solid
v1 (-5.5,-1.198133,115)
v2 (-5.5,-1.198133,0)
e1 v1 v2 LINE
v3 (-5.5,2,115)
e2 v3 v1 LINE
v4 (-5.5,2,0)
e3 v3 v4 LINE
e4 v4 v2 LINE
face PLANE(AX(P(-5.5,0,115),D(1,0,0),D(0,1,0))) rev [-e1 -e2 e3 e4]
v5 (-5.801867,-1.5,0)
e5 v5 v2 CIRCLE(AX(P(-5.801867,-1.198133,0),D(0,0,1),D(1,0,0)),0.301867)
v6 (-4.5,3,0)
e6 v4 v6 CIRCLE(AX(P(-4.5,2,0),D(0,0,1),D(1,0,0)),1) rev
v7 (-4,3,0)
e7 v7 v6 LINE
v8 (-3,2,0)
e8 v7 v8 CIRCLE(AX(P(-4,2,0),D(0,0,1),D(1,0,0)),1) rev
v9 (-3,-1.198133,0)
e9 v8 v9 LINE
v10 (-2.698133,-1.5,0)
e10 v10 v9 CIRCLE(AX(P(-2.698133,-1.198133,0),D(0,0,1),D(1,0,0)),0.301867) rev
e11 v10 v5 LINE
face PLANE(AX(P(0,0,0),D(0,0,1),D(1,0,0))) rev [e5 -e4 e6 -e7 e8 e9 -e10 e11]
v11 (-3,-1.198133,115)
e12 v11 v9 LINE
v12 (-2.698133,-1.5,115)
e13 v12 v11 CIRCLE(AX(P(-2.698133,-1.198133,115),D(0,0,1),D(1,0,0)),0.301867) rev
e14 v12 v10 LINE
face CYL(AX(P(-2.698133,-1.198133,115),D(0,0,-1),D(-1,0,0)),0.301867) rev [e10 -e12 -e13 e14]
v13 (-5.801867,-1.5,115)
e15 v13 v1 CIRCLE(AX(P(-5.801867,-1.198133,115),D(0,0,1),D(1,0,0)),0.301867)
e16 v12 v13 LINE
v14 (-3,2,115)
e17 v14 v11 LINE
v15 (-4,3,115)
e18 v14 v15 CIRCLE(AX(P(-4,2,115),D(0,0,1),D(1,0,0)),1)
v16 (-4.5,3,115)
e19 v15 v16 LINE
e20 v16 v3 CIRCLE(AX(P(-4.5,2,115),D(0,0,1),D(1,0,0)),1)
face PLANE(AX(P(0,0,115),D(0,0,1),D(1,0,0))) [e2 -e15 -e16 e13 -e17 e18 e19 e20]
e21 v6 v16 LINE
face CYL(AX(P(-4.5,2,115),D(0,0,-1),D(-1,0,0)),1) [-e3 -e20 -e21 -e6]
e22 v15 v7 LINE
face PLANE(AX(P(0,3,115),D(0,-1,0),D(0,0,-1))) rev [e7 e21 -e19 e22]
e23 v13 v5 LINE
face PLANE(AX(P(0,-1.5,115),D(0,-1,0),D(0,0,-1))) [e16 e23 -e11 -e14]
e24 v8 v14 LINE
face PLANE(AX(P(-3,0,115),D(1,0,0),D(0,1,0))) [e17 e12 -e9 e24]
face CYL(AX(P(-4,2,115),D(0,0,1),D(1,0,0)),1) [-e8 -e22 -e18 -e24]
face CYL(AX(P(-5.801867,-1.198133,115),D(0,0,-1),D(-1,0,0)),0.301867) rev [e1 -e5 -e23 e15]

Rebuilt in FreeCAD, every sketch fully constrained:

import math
import FreeCAD as App
import Part
import Sketcher

V = App.Vector
Q = App.Units.Quantity


def edges_at(feature, points):
    """Names of the edges that pass closest to the given points."""
    edges = feature.Shape.Edges
    near = lambda p: min(range(len(edges)), key=lambda i: edges[i].distToShape(Part.Vertex(*p))[0])
    return sorted({f"Edge{near(p) + 1}" for p in points})

doc = App.newDocument("Part")
body = doc.addObject("PartDesign::Body", "Body")

# Sketch on XY plane
sketch1 = body.newObject("Sketcher::SketchObject", "Sketch")
sketch1.AttachmentSupport = (doc.getObject("XY_Plane"), [""])
sketch1.MapMode = "FlatFace"
sketch1.addGeometry(Part.LineSegment(V(-5.5, 3, 0), V(-5.5, -1.2, 0)), False)
sketch1.addGeometry(Part.ArcOfCircle(Part.Circle(V(-5.8, -1.2, 0), V(0, 0, 1), 0.3), math.radians(-90), math.radians(0)), False)
sketch1.addGeometry(Part.LineSegment(V(-5.8, -1.5, 0), V(-2.7, -1.5, 0)), False)
sketch1.addGeometry(Part.ArcOfCircle(Part.Circle(V(-2.7, -1.2, 0), V(0, 0, 1), 0.3), math.radians(180), math.radians(270)), False)
sketch1.addGeometry(Part.LineSegment(V(-3, -1.2, 0), V(-3, 3, 0)), False)
sketch1.addGeometry(Part.LineSegment(V(-3, 3, 0), V(-5.5, 3, 0)), False)
sketch1.addConstraint(Sketcher.Constraint("Tangent", 0, 2, 1, 2))
sketch1.addConstraint(Sketcher.Constraint("Tangent", 1, 1, 2, 1))
sketch1.addConstraint(Sketcher.Constraint("Tangent", 2, 2, 3, 2))
sketch1.addConstraint(Sketcher.Constraint("Tangent", 3, 1, 4, 1))
sketch1.addConstraint(Sketcher.Constraint("Coincident", 4, 2, 5, 1))
sketch1.addConstraint(Sketcher.Constraint("Coincident", 5, 2, 0, 1))
sketch1.addConstraint(Sketcher.Constraint("Vertical", 0))
sketch1.addConstraint(Sketcher.Constraint("Horizontal", 2))
sketch1.addConstraint(Sketcher.Constraint("Vertical", 4))
sketch1.addConstraint(Sketcher.Constraint("Horizontal", 5))
sketch1.addConstraint(Sketcher.Constraint("Equal", 1, 3))
sketch1.addConstraint(Sketcher.Constraint("DistanceX", 5, 2, 5, 1, Q("2.5 mm")))
sketch1.addConstraint(Sketcher.Constraint("DistanceX", 3, 1, -1, 1, Q("3 mm")))
sketch1.addConstraint(Sketcher.Constraint("DistanceY", -1, 1, 4, 2, Q("3 mm")))
sketch1.addConstraint(Sketcher.Constraint("DistanceY", 1, 1, -1, 1, Q("1.5 mm")))
sketch1.addConstraint(Sketcher.Constraint("Radius", 1, Q("0.301867 mm")))
pad1 = body.newObject("PartDesign::Pad", "Pad")
pad1.Profile = sketch1
pad1.Length = 115
doc.recompute()

fillet = body.newObject("PartDesign::Fillet", "Fillet")
fillet.Base = (pad1, edges_at(pad1, [(-3, 3, 57.5), (-5.5, 3, 57.5)]))
fillet.Radius = 1

doc.recompute()
